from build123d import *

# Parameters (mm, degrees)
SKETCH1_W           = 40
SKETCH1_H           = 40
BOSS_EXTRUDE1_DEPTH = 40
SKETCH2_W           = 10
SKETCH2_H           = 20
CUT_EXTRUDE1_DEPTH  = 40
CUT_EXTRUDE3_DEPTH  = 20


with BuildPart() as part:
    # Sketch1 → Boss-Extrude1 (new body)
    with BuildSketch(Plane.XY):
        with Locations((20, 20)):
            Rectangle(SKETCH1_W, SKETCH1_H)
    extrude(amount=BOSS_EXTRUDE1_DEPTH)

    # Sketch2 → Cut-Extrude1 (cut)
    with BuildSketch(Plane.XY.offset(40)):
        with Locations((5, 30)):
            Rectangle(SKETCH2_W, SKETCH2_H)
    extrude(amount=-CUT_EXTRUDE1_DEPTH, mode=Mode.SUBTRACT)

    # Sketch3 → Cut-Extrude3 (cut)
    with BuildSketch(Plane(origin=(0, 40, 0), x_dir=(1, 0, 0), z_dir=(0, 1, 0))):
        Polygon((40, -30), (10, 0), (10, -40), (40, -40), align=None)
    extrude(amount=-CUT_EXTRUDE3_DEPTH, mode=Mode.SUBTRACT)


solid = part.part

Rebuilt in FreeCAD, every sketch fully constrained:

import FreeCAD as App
import Part
import Sketcher

doc = App.newDocument("Part")
body = doc.addObject("PartDesign::Body", "Body")

# Sketch on XY plane
sketch1 = body.newObject("Sketcher::SketchObject", "Sketch")
sketch1.AttachmentSupport = (doc.getObject("XY_Plane"), [""])
sketch1.MapMode = "FlatFace"
sketch1.addGeometry([
    Part.LineSegment(App.Vector(0, 40, 0), App.Vector(0, 0, 0)),
    Part.LineSegment(App.Vector(0, 0, 0), App.Vector(40, 0, 0)),
    Part.LineSegment(App.Vector(40, 0, 0), App.Vector(40, 40, 0)),
    Part.LineSegment(App.Vector(40, 40, 0), App.Vector(0, 40, 0)),
], False)
sketch1.addConstraint([
    Sketcher.Constraint("Coincident", 0, 2, 1, 1),
    Sketcher.Constraint("Coincident", 1, 2, 2, 1),
    Sketcher.Constraint("Coincident", 2, 2, 3, 1),
    Sketcher.Constraint("Coincident", 3, 2, 0, 1),
    Sketcher.Constraint("Vertical", 0),
    Sketcher.Constraint("Horizontal", 1),
    Sketcher.Constraint("Vertical", 2),
    Sketcher.Constraint("Horizontal", 3),
    Sketcher.Constraint("Coincident", 0, 2, -1, 1),
    Sketcher.Constraint("Equal", 3, 0),
    Sketcher.Constraint("DistanceX", 1, 1, 1, 2, 40.0),
])
pad1 = body.newObject("PartDesign::Pad", "Pad")
pad1.Profile = sketch1
pad1.Length = 40

# Sketch on XY plane
sketch2 = body.newObject("Sketcher::SketchObject", "Sketch001")
sketch2.AttachmentSupport = (doc.getObject("XY_Plane"), [""])
sketch2.MapMode = "FlatFace"
sketch2.AttachmentOffset = App.Placement(App.Vector(0, 0, 40), App.Rotation())
sketch2.addGeometry([
    Part.LineSegment(App.Vector(0, 40, 0), App.Vector(0, 20, 0)),
    Part.LineSegment(App.Vector(0, 20, 0), App.Vector(10, 20, 0)),
    Part.LineSegment(App.Vector(10, 20, 0), App.Vector(10, 40, 0)),
    Part.LineSegment(App.Vector(10, 40, 0), App.Vector(0, 40, 0)),
], False)
sketch2.addConstraint([
    Sketcher.Constraint("Coincident", 0, 2, 1, 1),
    Sketcher.Constraint("Coincident", 1, 2, 2, 1),
    Sketcher.Constraint("Coincident", 2, 2, 3, 1),
    Sketcher.Constraint("Coincident", 3, 2, 0, 1),
    Sketcher.Constraint("Vertical", 0),
    Sketcher.Constraint("Horizontal", 1),
    Sketcher.Constraint("Vertical", 2),
    Sketcher.Constraint("Horizontal", 3),
    Sketcher.Constraint("PointOnObject", 0, 2, -2),
    Sketcher.Constraint("DistanceX", 1, 1, 1, 2, 10.0),
    Sketcher.Constraint("DistanceY", 0, 2, 0, 1, 20.0),
    Sketcher.Constraint("DistanceY", -1, 1, 0, 2, 20.0),
])
pocket1 = body.newObject("PartDesign::Pocket", "Pocket")
pocket1.Profile = sketch2
pocket1.Length = 40

# Sketch on XZ plane
sketch3 = body.newObject("Sketcher::SketchObject", "Sketch002")
sketch3.AttachmentSupport = (doc.getObject("XZ_Plane"), [""])
sketch3.MapMode = "FlatFace"
sketch3.AttachmentOffset = App.Placement(App.Vector(0, 0, -40), App.Rotation())
sketch3.addGeometry([
    Part.LineSegment(App.Vector(40, 30, 0), App.Vector(10, 0, 0)),
    Part.LineSegment(App.Vector(10, 0, 0), App.Vector(10, 40, 0)),
    Part.LineSegment(App.Vector(10, 40, 0), App.Vector(40, 40, 0)),
    Part.LineSegment(App.Vector(40, 40, 0), App.Vector(40, 30, 0)),
], False)
sketch3.addConstraint([
    Sketcher.Constraint("Coincident", 0, 2, 1, 1),
    Sketcher.Constraint("Coincident", 1, 2, 2, 1),
    Sketcher.Constraint("Coincident", 2, 2, 3, 1),
    Sketcher.Constraint("Coincident", 3, 2, 0, 1),
    Sketcher.Constraint("Vertical", 1),
    Sketcher.Constraint("Horizontal", 2),
    Sketcher.Constraint("Vertical", 3),
    Sketcher.Constraint("PointOnObject", 0, 2, -1),
    Sketcher.Constraint("DistanceX", 2, 1, 2, 2, 30.0),
    Sketcher.Constraint("DistanceY", 1, 1, 1, 2, 40.0),
    Sketcher.Constraint("DistanceY", 3, 2, 3, 1, 10.0),
    Sketcher.Constraint("DistanceX", -1, 1, 0, 2, 10.0),
])
pocket2 = body.newObject("PartDesign::Pocket", "Pocket001")
pocket2.Profile = sketch3
pocket2.Length = 20
pocket2.Reversed = True

doc.recompute()
